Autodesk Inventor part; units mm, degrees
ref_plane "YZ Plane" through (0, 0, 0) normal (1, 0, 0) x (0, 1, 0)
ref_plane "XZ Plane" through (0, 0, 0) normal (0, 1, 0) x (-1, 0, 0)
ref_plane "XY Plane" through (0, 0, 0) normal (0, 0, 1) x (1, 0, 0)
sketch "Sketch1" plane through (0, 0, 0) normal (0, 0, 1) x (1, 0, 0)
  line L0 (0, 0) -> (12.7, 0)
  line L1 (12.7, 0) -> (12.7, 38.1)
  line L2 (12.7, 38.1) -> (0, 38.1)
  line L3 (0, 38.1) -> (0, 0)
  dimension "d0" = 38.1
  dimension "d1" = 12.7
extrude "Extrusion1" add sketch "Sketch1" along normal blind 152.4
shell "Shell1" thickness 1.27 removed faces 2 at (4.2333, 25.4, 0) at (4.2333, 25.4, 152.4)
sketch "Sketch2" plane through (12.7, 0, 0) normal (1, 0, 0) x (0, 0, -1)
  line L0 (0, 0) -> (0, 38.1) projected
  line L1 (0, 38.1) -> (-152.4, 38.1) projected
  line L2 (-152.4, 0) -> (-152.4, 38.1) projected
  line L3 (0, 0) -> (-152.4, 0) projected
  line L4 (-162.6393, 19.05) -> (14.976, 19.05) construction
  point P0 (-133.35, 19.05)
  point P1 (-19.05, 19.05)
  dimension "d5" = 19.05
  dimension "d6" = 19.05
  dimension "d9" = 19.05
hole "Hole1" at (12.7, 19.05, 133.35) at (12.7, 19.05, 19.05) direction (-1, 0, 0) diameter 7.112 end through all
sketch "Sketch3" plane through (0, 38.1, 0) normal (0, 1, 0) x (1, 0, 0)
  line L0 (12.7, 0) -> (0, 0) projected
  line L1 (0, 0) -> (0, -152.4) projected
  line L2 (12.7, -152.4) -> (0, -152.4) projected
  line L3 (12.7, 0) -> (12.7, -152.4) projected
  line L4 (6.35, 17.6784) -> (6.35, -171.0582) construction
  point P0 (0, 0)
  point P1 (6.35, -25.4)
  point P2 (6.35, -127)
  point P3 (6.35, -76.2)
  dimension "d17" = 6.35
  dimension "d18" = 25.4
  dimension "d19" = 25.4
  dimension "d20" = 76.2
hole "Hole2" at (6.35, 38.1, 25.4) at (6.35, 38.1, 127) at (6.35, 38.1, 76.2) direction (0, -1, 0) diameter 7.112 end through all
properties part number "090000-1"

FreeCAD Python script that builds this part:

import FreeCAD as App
import Part
import Sketcher
Q = App.Units.Quantity


def faces_at(feature, points):
    """Names of the faces that lie closest to the given points."""
    faces = feature.Shape.Faces
    near = lambda p: min(range(len(faces)), key=lambda i: faces[i].distToShape(Part.Vertex(*p))[0])
    return sorted({f"Face{near(p) + 1}" for p in points})

doc = App.newDocument("Part")
params = doc.addObject("Spreadsheet::Sheet", "Params")
for row, (alias, value) in enumerate([
    ("sketch1_width", "0.5 in"),
    ("sketch1_height", "1.5 in"),
    ("pad1_length", "6 in"),
    ("thickness_wall", "0.05 in"),
    ("sketch2_diameter", "0.28 in"),
    ("hole_diameter", "0.28 in"),
    ("sketch3_diameter", "0.28 in"),
    ("hole2_diameter", "0.28 in"),
], start=1):
    params.set(f"A{row}", alias)
    params.set(f"B{row}", "=" + value)
    params.setAlias(f"B{row}", alias)

body = doc.addObject("PartDesign::Body", "Body")

sketch1 = body.newObject("Sketcher::SketchObject", "Sketch")
sketch1.AttachmentSupport = (doc.getObject("XY_Plane"), [""])
sketch1.MapMode = "FlatFace"
sketch1.addGeometry([
    Part.LineSegment(App.Vector(0, 38, 0), App.Vector(0, 0, 0)),
    Part.LineSegment(App.Vector(0, 0, 0), App.Vector(13, 0, 0)),
    Part.LineSegment(App.Vector(13, 0, 0), App.Vector(13, 38, 0)),
    Part.LineSegment(App.Vector(13, 38, 0), App.Vector(0, 38, 0)),
], False)
sketch1.addConstraint([
    Sketcher.Constraint("Coincident", 0, 2, 1, 1),
    Sketcher.Constraint("Coincident", 1, 2, 2, 1),
    Sketcher.Constraint("Coincident", 2, 2, 3, 1),
    Sketcher.Constraint("Coincident", 3, 2, 0, 1),
    Sketcher.Constraint("Vertical", 0),
    Sketcher.Constraint("Horizontal", 1),
    Sketcher.Constraint("Vertical", 2),
    Sketcher.Constraint("Horizontal", 3),
    Sketcher.Constraint("Coincident", 0, 2, -1, 1),
    Sketcher.Constraint("DistanceX", 1, 1, 1, 2, Q("0.5 in")),
    Sketcher.Constraint("DistanceY", 0, 2, 0, 1, Q("1.5 in")),
])
sketch1.setExpression("Constraints[9]", "Params.sketch1_width")
sketch1.setExpression("Constraints[10]", "Params.sketch1_height")
pad1 = body.newObject("PartDesign::Pad", "Pad")
pad1.Profile = sketch1
pad1.setExpression("Length", "Params.pad1_length")
doc.recompute()

thickness = body.newObject("PartDesign::Thickness", "Thickness")
thickness.Base = (pad1, faces_at(pad1, [(4.233, 25.4, 0), (4.233, 25.4, 152.4)]))
thickness.setExpression("Value", "Params.thickness_wall")
thickness.Reversed = True
thickness.Join = "Intersection"

sketch2 = body.newObject("Sketcher::SketchObject", "Sketch001")
sketch2.AttachmentSupport = (doc.getObject("YZ_Plane"), [""])
sketch2.MapMode = "FlatFace"
sketch2.AttachmentOffset = App.Placement(App.Vector(0, 0, 0.5 * 25.4), App.Rotation())
sketch2.addGeometry([
    Part.Circle(App.Vector(19.1, 133.3, 0), App.Vector(0, 0, 1), 3.6),
    Part.Circle(App.Vector(19.1, 19.1, 0), App.Vector(0, 0, 1), 3.6),
], False)
sketch2.addConstraint([
    Sketcher.Constraint("Equal", 0, 1),
    Sketcher.Constraint("Vertical", 0, 3, 1, 3),
    Sketcher.Constraint("Diameter", 0, Q("0.28 in")),
    Sketcher.Constraint("DistanceY", 1, 3, 0, 3, Q("4.5 in")),
    Sketcher.Constraint("DistanceX", -1, 1, 0, 3, Q("0.75 in")),
    Sketcher.Constraint("DistanceY", -1, 1, 0, 3, Q("5.25 in")),
])
sketch2.setExpression("Constraints[2]", "Params.sketch2_diameter")
doc.recompute()
hole = body.newObject("PartDesign::Hole", "Hole")
hole.Profile = sketch2
hole.ThreadType = "None"
hole.setExpression("Diameter", "Params.hole_diameter")
hole.DepthType = "ThroughAll"

sketch3 = body.newObject("Sketcher::SketchObject", "Sketch002")
sketch3.AttachmentSupport = (doc.getObject("XZ_Plane"), [""])
sketch3.MapMode = "FlatFace"
sketch3.AttachmentOffset = App.Placement(App.Vector(0, 0, -1.5 * 25.4), App.Rotation())
sketch3.addGeometry([
    Part.Circle(App.Vector(6.3, 25.4, 0), App.Vector(0, 0, 1), 3.6),
    Part.Circle(App.Vector(6.3, 127, 0), App.Vector(0, 0, 1), 3.6),
    Part.Circle(App.Vector(6.3, 76.2, 0), App.Vector(0, 0, 1), 3.6),
], False)
sketch3.addConstraint([
    Sketcher.Constraint("Equal", 0, 1),
    Sketcher.Constraint("Equal", 1, 2),
    Sketcher.Constraint("Vertical", 0, 3, 1, 3),
    Sketcher.Constraint("Vertical", 1, 3, 2, 3),
    Sketcher.Constraint("Diameter", 0, Q("0.28 in")),
    Sketcher.Constraint("DistanceY", -1, 1, 0, 3, Q("1 in")),
    Sketcher.Constraint("DistanceY", -1, 1, 1, 3, Q("5 in")),
    Sketcher.Constraint("DistanceY", -1, 1, 2, 3, Q("3 in")),
    Sketcher.Constraint("DistanceX", -1, 1, 0, 3, Q("0.25 in")),
])
sketch3.setExpression("Constraints[4]", "Params.sketch3_diameter")
doc.recompute()
hole2 = body.newObject("PartDesign::Hole", "Hole001")
hole2.Profile = sketch3
hole2.ThreadType = "None"
hole2.setExpression("Diameter", "Params.hole2_diameter")
hole2.DepthType = "ThroughAll"
hole2.Reversed = True

doc.recompute()
